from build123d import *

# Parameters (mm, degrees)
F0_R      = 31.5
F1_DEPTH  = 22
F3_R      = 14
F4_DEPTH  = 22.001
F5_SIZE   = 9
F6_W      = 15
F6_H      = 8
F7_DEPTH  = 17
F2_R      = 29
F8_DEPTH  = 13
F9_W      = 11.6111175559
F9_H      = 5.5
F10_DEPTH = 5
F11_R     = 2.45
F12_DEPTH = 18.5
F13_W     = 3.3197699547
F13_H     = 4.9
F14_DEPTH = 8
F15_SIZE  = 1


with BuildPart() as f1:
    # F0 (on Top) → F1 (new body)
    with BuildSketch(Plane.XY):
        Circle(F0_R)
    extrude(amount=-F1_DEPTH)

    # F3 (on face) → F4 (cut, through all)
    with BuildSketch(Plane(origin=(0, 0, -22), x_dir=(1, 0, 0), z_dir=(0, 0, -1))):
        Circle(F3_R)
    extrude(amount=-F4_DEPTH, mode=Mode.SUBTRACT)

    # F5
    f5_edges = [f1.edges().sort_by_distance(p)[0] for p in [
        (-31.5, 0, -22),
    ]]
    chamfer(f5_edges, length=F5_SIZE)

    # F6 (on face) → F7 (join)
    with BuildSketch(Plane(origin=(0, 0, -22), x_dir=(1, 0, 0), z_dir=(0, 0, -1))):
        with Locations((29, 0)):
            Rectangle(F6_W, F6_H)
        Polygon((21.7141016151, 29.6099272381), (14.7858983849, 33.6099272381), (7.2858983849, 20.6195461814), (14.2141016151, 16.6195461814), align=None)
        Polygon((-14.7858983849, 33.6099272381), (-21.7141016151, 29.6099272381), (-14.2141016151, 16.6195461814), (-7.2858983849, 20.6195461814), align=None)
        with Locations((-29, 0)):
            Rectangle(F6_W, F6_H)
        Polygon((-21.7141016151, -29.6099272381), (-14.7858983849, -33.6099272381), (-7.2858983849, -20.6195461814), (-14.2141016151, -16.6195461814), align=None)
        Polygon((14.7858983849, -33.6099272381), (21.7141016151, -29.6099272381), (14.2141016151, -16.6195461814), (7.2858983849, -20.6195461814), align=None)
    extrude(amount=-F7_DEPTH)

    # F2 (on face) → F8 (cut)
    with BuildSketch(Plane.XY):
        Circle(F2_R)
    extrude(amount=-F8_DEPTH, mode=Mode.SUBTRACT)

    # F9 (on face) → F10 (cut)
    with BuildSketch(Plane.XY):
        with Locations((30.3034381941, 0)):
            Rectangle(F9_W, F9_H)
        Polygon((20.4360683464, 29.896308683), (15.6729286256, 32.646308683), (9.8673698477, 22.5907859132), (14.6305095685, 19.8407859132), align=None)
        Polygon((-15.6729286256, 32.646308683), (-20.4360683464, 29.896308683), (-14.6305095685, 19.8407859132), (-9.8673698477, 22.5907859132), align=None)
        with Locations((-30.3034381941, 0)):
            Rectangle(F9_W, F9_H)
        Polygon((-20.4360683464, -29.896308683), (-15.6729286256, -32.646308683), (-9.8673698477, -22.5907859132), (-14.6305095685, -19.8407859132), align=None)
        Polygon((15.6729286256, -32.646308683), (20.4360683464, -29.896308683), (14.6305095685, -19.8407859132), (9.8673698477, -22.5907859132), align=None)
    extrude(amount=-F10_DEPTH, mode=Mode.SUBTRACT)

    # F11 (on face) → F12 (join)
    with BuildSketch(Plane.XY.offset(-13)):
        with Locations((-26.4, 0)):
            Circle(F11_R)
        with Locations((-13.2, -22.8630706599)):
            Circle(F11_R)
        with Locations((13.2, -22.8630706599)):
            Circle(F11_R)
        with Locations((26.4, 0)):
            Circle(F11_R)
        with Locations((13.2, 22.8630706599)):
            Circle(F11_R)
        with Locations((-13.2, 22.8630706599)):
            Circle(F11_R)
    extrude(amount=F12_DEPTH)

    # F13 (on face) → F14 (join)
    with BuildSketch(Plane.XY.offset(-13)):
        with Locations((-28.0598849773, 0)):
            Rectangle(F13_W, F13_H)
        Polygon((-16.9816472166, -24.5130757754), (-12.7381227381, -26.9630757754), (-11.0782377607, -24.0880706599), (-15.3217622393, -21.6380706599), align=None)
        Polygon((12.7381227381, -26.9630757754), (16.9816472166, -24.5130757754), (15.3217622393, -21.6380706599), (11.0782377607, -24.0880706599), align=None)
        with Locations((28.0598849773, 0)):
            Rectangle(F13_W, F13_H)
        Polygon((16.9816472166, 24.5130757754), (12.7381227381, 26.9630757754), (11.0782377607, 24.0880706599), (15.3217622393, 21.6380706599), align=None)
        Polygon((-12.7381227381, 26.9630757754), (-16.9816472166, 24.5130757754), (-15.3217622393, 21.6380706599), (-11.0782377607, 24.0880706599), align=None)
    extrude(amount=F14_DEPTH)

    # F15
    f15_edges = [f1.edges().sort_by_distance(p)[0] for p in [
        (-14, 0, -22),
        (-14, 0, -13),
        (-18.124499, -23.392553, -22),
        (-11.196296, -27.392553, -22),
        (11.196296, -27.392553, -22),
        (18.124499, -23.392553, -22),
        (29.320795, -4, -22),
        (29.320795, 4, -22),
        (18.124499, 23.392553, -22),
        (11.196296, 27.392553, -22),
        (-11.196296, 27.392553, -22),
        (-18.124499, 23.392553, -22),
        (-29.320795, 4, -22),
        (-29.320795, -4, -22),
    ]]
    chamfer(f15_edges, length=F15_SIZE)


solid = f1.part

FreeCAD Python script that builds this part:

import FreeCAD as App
import Part
import Sketcher
from FreeCAD import Vector
Q = App.Units.Quantity


def edges_at(feature, points):
    """Names of the edges that pass closest to the given points."""
    edges = feature.Shape.Edges
    near = lambda p: min(range(len(edges)), key=lambda i: edges[i].distToShape(Part.Vertex(*p))[0])
    return sorted({f"Edge{near(p) + 1}" for p in points})

doc = App.newDocument("Part")
params = doc.addObject("Spreadsheet::Sheet", "Params")
for row, (alias, value) in enumerate([
    ("sketch1_diameter", "63 mm"),
    ("pad1_length", "22 mm"),
    ("sketch2_diameter", "28 mm"),
    ("chamfer_size", "9 mm"),
    ("sketch3_width", "15 mm"),
    ("sketch3_height", "8 mm"),
    ("sketch3_length", "8 mm"),
    ("sketch3_length2", "15 mm"),
    ("pad2_length", "17 mm"),
    ("sketch4_diameter", "58 mm"),
    ("pocket2_length", "13 mm"),
    ("sketch5_height", "5.5 mm"),
    ("sketch5_length", "5.5 mm"),
    ("pocket3_length", "5 mm"),
    ("sketch6_diameter", "4.9 mm"),
    ("pad3_length", "18.5 mm"),
    ("sketch7_height", "4.9 mm"),
    ("sketch7_length", "4.9 mm"),
    ("pad4_length", "8 mm"),
    ("chamfer2_size", "1 mm"),
], start=1):
    params.set(f"A{row}", alias)
    params.set(f"B{row}", "=" + value)
    params.setAlias(f"B{row}", alias)

body = doc.addObject("PartDesign::Body", "Body")

# Sketch on XY plane
sketch1 = doc.addObject("Sketcher::SketchObject", "Sketch")
body.addObject(sketch1)
sketch1.AttachmentSupport = (doc.XY_Plane, [""])
sketch1.MapMode = "FlatFace"
sketch1.addGeometry(Part.Circle(Vector(0, 0, 0), Vector(0, 0, 1), 31.5), False)
sketch1.addConstraint([
    Sketcher.Constraint("Coincident", 0, 3, -1, 1),
    Sketcher.Constraint("Diameter", 0, Q("63 mm")),
])
sketch1.setExpression("Constraints[1]", "Params.sketch1_diameter")
pad1 = doc.addObject("PartDesign::Pad", "Pad")
body.addObject(pad1)
pad1.Profile = sketch1
pad1.setExpression("Length", "Params.pad1_length")
pad1.Reversed = True

# Sketch on XY plane
sketch2 = doc.addObject("Sketcher::SketchObject", "Sketch001")
body.addObject(sketch2)
sketch2.AttachmentSupport = (doc.XY_Plane, [""])
sketch2.MapMode = "FlatFace"
sketch2.AttachmentOffset = App.Placement(Vector(0, 0, -22), App.Rotation())
sketch2.addGeometry(Part.Circle(Vector(0, 0, 0), Vector(0, 0, 1), 14), False)
sketch2.addConstraint([
    Sketcher.Constraint("Coincident", 0, 3, -1, 1),
    Sketcher.Constraint("Diameter", 0, Q("28 mm")),
])
sketch2.setExpression("Constraints[1]", "Params.sketch2_diameter")
pocket1 = doc.addObject("PartDesign::Pocket", "Pocket")
body.addObject(pocket1)
pocket1.Profile = sketch2
pocket1.Type = "ThroughAll"
pocket1.Reversed = True
doc.recompute()

chamfer = doc.addObject("PartDesign::Chamfer", "Chamfer")
body.addObject(chamfer)
chamfer.Base = (pocket1, edges_at(pocket1, [(-31.5, 0, -22)]))
chamfer.setExpression("Size", "Params.chamfer_size")

# Sketch on XY plane
sketch3 = doc.addObject("Sketcher::SketchObject", "Sketch002")
body.addObject(sketch3)
sketch3.AttachmentSupport = (doc.XY_Plane, [""])
sketch3.MapMode = "FlatFace"
sketch3.AttachmentOffset = App.Placement(Vector(0, 0, -22), App.Rotation())
sketch3.addGeometry([
    Part.LineSegment(Vector(21.5, -4, 0), Vector(21.5, 4, 0)),  # 0
    Part.LineSegment(Vector(21.5, 4, 0), Vector(36.5, 4, 0)),  # 1
    Part.LineSegment(Vector(36.5, 4, 0), Vector(36.5, -4, 0)),  # 2
    Part.LineSegment(Vector(36.5, -4, 0), Vector(21.5, -4, 0)),  # 3
    Part.LineSegment(Vector(21.714102, -29.609927, 0), Vector(14.785898, -33.609927, 0)),  # 4
    Part.LineSegment(Vector(14.785898, -33.609927, 0), Vector(7.285898, -20.619546, 0)),  # 5
    Part.LineSegment(Vector(7.285898, -20.619546, 0), Vector(14.214102, -16.619546, 0)),  # 6
    Part.LineSegment(Vector(14.214102, -16.619546, 0), Vector(21.714102, -29.609927, 0)),  # 7
    Part.LineSegment(Vector(-14.785898, -33.609927, 0), Vector(-21.714102, -29.609927, 0)),  # 8
    Part.LineSegment(Vector(-21.714102, -29.609927, 0), Vector(-14.214102, -16.619546, 0)),  # 9
    Part.LineSegment(Vector(-14.214102, -16.619546, 0), Vector(-7.285898, -20.619546, 0)),  # 10
    Part.LineSegment(Vector(-7.285898, -20.619546, 0), Vector(-14.785898, -33.609927, 0)),  # 11
    Part.LineSegment(Vector(-36.5, -4, 0), Vector(-36.5, 4, 0)),  # 12
    Part.LineSegment(Vector(-36.5, 4, 0), Vector(-21.5, 4, 0)),  # 13
    Part.LineSegment(Vector(-21.5, 4, 0), Vector(-21.5, -4, 0)),  # 14
    Part.LineSegment(Vector(-21.5, -4, 0), Vector(-36.5, -4, 0)),  # 15
    Part.LineSegment(Vector(-21.714102, 29.609927, 0), Vector(-14.785898, 33.609927, 0)),  # 16
    Part.LineSegment(Vector(-14.785898, 33.609927, 0), Vector(-7.285898, 20.619546, 0)),  # 17
    Part.LineSegment(Vector(-7.285898, 20.619546, 0), Vector(-14.214102, 16.619546, 0)),  # 18
    Part.LineSegment(Vector(-14.214102, 16.619546, 0), Vector(-21.714102, 29.609927, 0)),  # 19
    Part.LineSegment(Vector(14.785898, 33.609927, 0), Vector(21.714102, 29.609927, 0)),  # 20
    Part.LineSegment(Vector(21.714102, 29.609927, 0), Vector(14.214102, 16.619546, 0)),  # 21
    Part.LineSegment(Vector(14.214102, 16.619546, 0), Vector(7.285898, 20.619546, 0)),  # 22
    Part.LineSegment(Vector(7.285898, 20.619546, 0), Vector(14.785898, 33.609927, 0)),  # 23
], False)
sketch3.addConstraint([
    Sketcher.Constraint("Coincident", 0, 2, 1, 1),
    Sketcher.Constraint("Coincident", 1, 2, 2, 1),
    Sketcher.Constraint("Coincident", 2, 2, 3, 1),
    Sketcher.Constraint("Coincident", 3, 2, 0, 1),
    Sketcher.Constraint("Coincident", 4, 2, 5, 1),
    Sketcher.Constraint("Coincident", 5, 2, 6, 1),
    Sketcher.Constraint("Coincident", 6, 2, 7, 1),
    Sketcher.Constraint("Coincident", 7, 2, 4, 1),
    Sketcher.Constraint("Coincident", 8, 2, 9, 1),
    Sketcher.Constraint("Coincident", 9, 2, 10, 1),
    Sketcher.Constraint("Coincident", 10, 2, 11, 1),
    Sketcher.Constraint("Coincident", 11, 2, 8, 1),
    Sketcher.Constraint("Coincident", 12, 2, 13, 1),
    Sketcher.Constraint("Coincident", 13, 2, 14, 1),
    Sketcher.Constraint("Coincident", 14, 2, 15, 1),
    Sketcher.Constraint("Coincident", 15, 2, 12, 1),
    Sketcher.Constraint("Coincident", 16, 2, 17, 1),
    Sketcher.Constraint("Coincident", 17, 2, 18, 1),
    Sketcher.Constraint("Coincident", 18, 2, 19, 1),
    Sketcher.Constraint("Coincident", 19, 2, 16, 1),
    Sketcher.Constraint("Coincident", 20, 2, 21, 1),
    Sketcher.Constraint("Coincident", 21, 2, 22, 1),
    Sketcher.Constraint("Coincident", 22, 2, 23, 1),
    Sketcher.Constraint("Coincident", 23, 2, 20, 1),
    Sketcher.Constraint("Vertical", 0),
    Sketcher.Constraint("Horizontal", 1),
    Sketcher.Constraint("Vertical", 2),
    Sketcher.Constraint("Horizontal", 3),
    Sketcher.Constraint("Vertical", 12),
    Sketcher.Constraint("Horizontal", 13),
    Sketcher.Constraint("Vertical", 14),
    Sketcher.Constraint("Horizontal", 15),
    Sketcher.Constraint("Symmetric", 2, 2, 12, 2, -1, 1),
    Sketcher.Constraint("Symmetric", 0, 2, 14, 2, -1, 1),
    Sketcher.Constraint("Symmetric", 4, 2, 16, 2, -1, 1),
    Sketcher.Constraint("Symmetric", 5, 2, 17, 2, -1, 1),
    Sketcher.Constraint("Symmetric", 6, 2, 18, 2, -1, 1),
    Sketcher.Constraint("Symmetric", 7, 2, 19, 2, -1, 1),
    Sketcher.Constraint("Symmetric", 8, 2, 20, 2, -1, 1),
    Sketcher.Constraint("Symmetric", 9, 2, 21, 2, -1, 1),
    Sketcher.Constraint("Symmetric", 10, 2, 22, 2, -1, 1),
    Sketcher.Constraint("Symmetric", 11, 2, 23, 2, -1, 1),
    Sketcher.Constraint("Symmetric", 7, 2, 8, 2, -2),
    Sketcher.Constraint("Symmetric", 6, 2, 9, 2, -2),
    Sketcher.Constraint("Symmetric", 5, 2, 10, 2, -2),
    Sketcher.Constraint("Symmetric", 4, 2, 11, 2, -2),
    Sketcher.Constraint("Perpendicular", 4, 5),
    Sketcher.Constraint("Perpendicular", 5, 6),
    Sketcher.Constraint("Perpendicular", 6, 7),
    Sketcher.Constraint("Horizontal", 1, 2, 12, 2),
    Sketcher.Constraint("DistanceX", 1, 1, 1, 2, Q("15 mm")),
    Sketcher.Constraint("DistanceY", 0, 1, 0, 2, Q("8 mm")),
    Sketcher.Constraint("Angle", 4, Q("-150 deg")),
    Sketcher.Constraint("Distance", 4, Q("8 mm")),
    Sketcher.Constraint("Distance", 5, Q("15 mm")),
    Sketcher.Constraint("DistanceX", 8, 2, 5, 2, Q("29 mm")),
    Sketcher.Constraint("DistanceX", -1, 1, 0, 2, Q("21.5 mm")),
    Sketcher.Constraint("DistanceY", 4, 2, -1, 1, Q("33.609927 mm")),
])
sketch3.setExpression("Constraints[50]", "Params.sketch3_width")
sketch3.setExpression("Constraints[51]", "Params.sketch3_height")
sketch3.setExpression("Constraints[53]", "Params.sketch3_length")
sketch3.setExpression("Constraints[54]", "Params.sketch3_length2")
pad2 = doc.addObject("PartDesign::Pad", "Pad001")
body.addObject(pad2)
pad2.Profile = sketch3
pad2.setExpression("Length", "Params.pad2_length")

# Sketch on XY plane
sketch4 = doc.addObject("Sketcher::SketchObject", "Sketch003")
body.addObject(sketch4)
sketch4.AttachmentSupport = (doc.XY_Plane, [""])
sketch4.MapMode = "FlatFace"
sketch4.addGeometry(Part.Circle(Vector(0, 0, 0), Vector(0, 0, 1), 29), False)
sketch4.addConstraint([
    Sketcher.Constraint("Coincident", 0, 3, -1, 1),
    Sketcher.Constraint("Diameter", 0, Q("58 mm")),
])
sketch4.setExpression("Constraints[1]", "Params.sketch4_diameter")
pocket2 = doc.addObject("PartDesign::Pocket", "Pocket001")
body.addObject(pocket2)
pocket2.Profile = sketch4
pocket2.setExpression("Length", "Params.pocket2_length")

# Sketch on XY plane
sketch5 = doc.addObject("Sketcher::SketchObject", "Sketch004")
body.addObject(sketch5)
sketch5.AttachmentSupport = (doc.XY_Plane, [""])
sketch5.MapMode = "FlatFace"
sketch5.addGeometry([
    Part.LineSegment(Vector(24.497879, 2.75, 0), Vector(24.497879, -2.75, 0)),  # 0
    Part.LineSegment(Vector(24.497879, -2.75, 0), Vector(36.108997, -2.75, 0)),  # 1
    Part.LineSegment(Vector(36.108997, -2.75, 0), Vector(36.108997, 2.75, 0)),  # 2
    Part.LineSegment(Vector(36.108997, 2.75, 0), Vector(24.497879, 2.75, 0)),  # 3
    Part.LineSegment(Vector(20.436068, 29.896309, 0), Vector(15.672929, 32.646309, 0)),  # 4
    Part.LineSegment(Vector(15.672929, 32.646309, 0), Vector(9.86737, 22.590786, 0)),  # 5
    Part.LineSegment(Vector(9.86737, 22.590786, 0), Vector(14.63051, 19.840786, 0)),  # 6
    Part.LineSegment(Vector(14.63051, 19.840786, 0), Vector(20.436068, 29.896309, 0)),  # 7
    Part.LineSegment(Vector(-15.672929, 32.646309, 0), Vector(-20.436068, 29.896309, 0)),  # 8
    Part.LineSegment(Vector(-20.436068, 29.896309, 0), Vector(-14.63051, 19.840786, 0)),  # 9
    Part.LineSegment(Vector(-14.63051, 19.840786, 0), Vector(-9.86737, 22.590786, 0)),  # 10
    Part.LineSegment(Vector(-9.86737, 22.590786, 0), Vector(-15.672929, 32.646309, 0)),  # 11
    Part.LineSegment(Vector(-36.108997, 2.75, 0), Vector(-36.108997, -2.75, 0)),  # 12
    Part.LineSegment(Vector(-36.108997, -2.75, 0), Vector(-24.497879, -2.75, 0)),  # 13
    Part.LineSegment(Vector(-24.497879, -2.75, 0), Vector(-24.497879, 2.75, 0)),  # 14
    Part.LineSegment(Vector(-24.497879, 2.75, 0), Vector(-36.108997, 2.75, 0)),  # 15
    Part.LineSegment(Vector(-20.436068, -29.896309, 0), Vector(-15.672929, -32.646309, 0)),  # 16
    Part.LineSegment(Vector(-15.672929, -32.646309, 0), Vector(-9.86737, -22.590786, 0)),  # 17
    Part.LineSegment(Vector(-9.86737, -22.590786, 0), Vector(-14.63051, -19.840786, 0)),  # 18
    Part.LineSegment(Vector(-14.63051, -19.840786, 0), Vector(-20.436068, -29.896309, 0)),  # 19
    Part.LineSegment(Vector(15.672929, -32.646309, 0), Vector(20.436068, -29.896309, 0)),  # 20
    Part.LineSegment(Vector(20.436068, -29.896309, 0), Vector(14.63051, -19.840786, 0)),  # 21
    Part.LineSegment(Vector(14.63051, -19.840786, 0), Vector(9.86737, -22.590786, 0)),  # 22
    Part.LineSegment(Vector(9.86737, -22.590786, 0), Vector(15.672929, -32.646309, 0)),  # 23
], False)
sketch5.addConstraint([
    Sketcher.Constraint("Coincident", 0, 2, 1, 1),
    Sketcher.Constraint("Coincident", 1, 2, 2, 1),
    Sketcher.Constraint("Coincident", 2, 2, 3, 1),
    Sketcher.Constraint("Coincident", 3, 2, 0, 1),
    Sketcher.Constraint("Coincident", 4, 2, 5, 1),
    Sketcher.Constraint("Coincident", 5, 2, 6, 1),
    Sketcher.Constraint("Coincident", 6, 2, 7, 1),
    Sketcher.Constraint("Coincident", 7, 2, 4, 1),
    Sketcher.Constraint("Coincident", 8, 2, 9, 1),
    Sketcher.Constraint("Coincident", 9, 2, 10, 1),
    Sketcher.Constraint("Coincident", 10, 2, 11, 1),
    Sketcher.Constraint("Coincident", 11, 2, 8, 1),
    Sketcher.Constraint("Coincident", 12, 2, 13, 1),
    Sketcher.Constraint("Coincident", 13, 2, 14, 1),
    Sketcher.Constraint("Coincident", 14, 2, 15, 1),
    Sketcher.Constraint("Coincident", 15, 2, 12, 1),
    Sketcher.Constraint("Coincident", 16, 2, 17, 1),
    Sketcher.Constraint("Coincident", 17, 2, 18, 1),
    Sketcher.Constraint("Coincident", 18, 2, 19, 1),
    Sketcher.Constraint("Coincident", 19, 2, 16, 1),
    Sketcher.Constraint("Coincident", 20, 2, 21, 1),
    Sketcher.Constraint("Coincident", 21, 2, 22, 1),
    Sketcher.Constraint("Coincident", 22, 2, 23, 1),
    Sketcher.Constraint("Coincident", 23, 2, 20, 1),
    Sketcher.Constraint("Vertical", 0),
    Sketcher.Constraint("Horizontal", 1),
    Sketcher.Constraint("Vertical", 2),
    Sketcher.Constraint("Horizontal", 3),
    Sketcher.Constraint("Vertical", 12),
    Sketcher.Constraint("Horizontal", 13),
    Sketcher.Constraint("Vertical", 14),
    Sketcher.Constraint("Horizontal", 15),
    Sketcher.Constraint("Symmetric", 2, 2, 12, 2, -1, 1),
    Sketcher.Constraint("Symmetric", 0, 2, 14, 2, -1, 1),
    Sketcher.Constraint("Symmetric", 4, 2, 16, 2, -1, 1),
    Sketcher.Constraint("Symmetric", 5, 2, 17, 2, -1, 1),
    Sketcher.Constraint("Symmetric", 6, 2, 18, 2, -1, 1),
    Sketcher.Constraint("Symmetric", 7, 2, 19, 2, -1, 1),
    Sketcher.Constraint("Symmetric", 8, 2, 20, 2, -1, 1),
    Sketcher.Constraint("Symmetric", 9, 2, 21, 2, -1, 1),
    Sketcher.Constraint("Symmetric", 10, 2, 22, 2, -1, 1),
    Sketcher.Constraint("Symmetric", 11, 2, 23, 2, -1, 1),
    Sketcher.Constraint("Symmetric", 7, 2, 8, 2, -2),
    Sketcher.Constraint("Symmetric", 6, 2, 9, 2, -2),
    Sketcher.Constraint("Symmetric", 5, 2, 10, 2, -2),
    Sketcher.Constraint("Symmetric", 4, 2, 11, 2, -2),
    Sketcher.Constraint("Perpendicular", 4, 5),
    Sketcher.Constraint("Perpendicular", 5, 6),
    Sketcher.Constraint("Perpendicular", 6, 7),
    Sketcher.Constraint("Horizontal", 1, 2, 12, 2),
    Sketcher.Constraint("Angle", 4, Q("150 deg")),
    Sketcher.Constraint("DistanceY", 0, 2, 0, 1, Q("5.5 mm")),
    Sketcher.Constraint("Distance", 4, Q("5.5 mm")),
    Sketcher.Constraint("DistanceX", 5, 2, 7, 2, Q("10.568698 mm")),
    Sketcher.Constraint("DistanceX", 10, 2, 4, 2, Q("25.540298 mm")),
    Sketcher.Constraint("DistanceX", 1, 1, 1, 2, Q("11.611118 mm")),
    Sketcher.Constraint("DistanceX", -1, 1, 0, 2, Q("24.497879 mm")),
    Sketcher.Constraint("DistanceY", -1, 1, 4, 2, Q("32.646309 mm")),
])
sketch5.setExpression("Constraints[51]", "Params.sketch5_height")
sketch5.setExpression("Constraints[52]", "Params.sketch5_length")
pocket3 = doc.addObject("PartDesign::Pocket", "Pocket002")
body.addObject(pocket3)
pocket3.Profile = sketch5
pocket3.setExpression("Length", "Params.pocket3_length")

# Sketch on XY plane
sketch6 = doc.addObject("Sketcher::SketchObject", "Sketch005")
body.addObject(sketch6)
sketch6.AttachmentSupport = (doc.XY_Plane, [""])
sketch6.MapMode = "FlatFace"
sketch6.AttachmentOffset = App.Placement(Vector(0, 0, -13), App.Rotation())
sketch6.addGeometry([
    Part.Circle(Vector(-26.4, 0, 0), Vector(0, 0, 1), 2.45),  # 0
    Part.Circle(Vector(-13.2, -22.863071, 0), Vector(0, 0, 1), 2.45),  # 1
    Part.Circle(Vector(13.2, -22.863071, 0), Vector(0, 0, 1), 2.45),  # 2
    Part.Circle(Vector(26.4, 0, 0), Vector(0, 0, 1), 2.45),  # 3
    Part.Circle(Vector(13.2, 22.863071, 0), Vector(0, 0, 1), 2.45),  # 4
    Part.Circle(Vector(-13.2, 22.863071, 0), Vector(0, 0, 1), 2.45),  # 5
], False)
sketch6.addConstraint([
    Sketcher.Constraint("Equal", 0, 1),
    Sketcher.Constraint("Equal", 1, 2),
    Sketcher.Constraint("Equal", 2, 3),
    Sketcher.Constraint("Equal", 3, 4),
    Sketcher.Constraint("Equal", 4, 5),
    Sketcher.Constraint("Symmetric", 0, 3, 3, 3, -1, 1),
    Sketcher.Constraint("Symmetric", 1, 3, 4, 3, -1, 1),
    Sketcher.Constraint("Symmetric", 2, 3, 5, 3, -1, 1),
    Sketcher.Constraint("Symmetric", 1, 3, 2, 3, -2),
    Sketcher.Constraint("PointOnObject", 0, 3, -1),
    Sketcher.Constraint("Diameter", 0, Q("4.9 mm")),
    Sketcher.Constraint("DistanceX", 0, 3, -1, 1, Q("26.4 mm")),
    Sketcher.Constraint("DistanceX", 1, 3, -1, 1, Q("13.2 mm")),
    Sketcher.Constraint("DistanceY", 1, 3, -1, 1, Q("22.863071 mm")),
])
sketch6.setExpression("Constraints[10]", "Params.sketch6_diameter")
pad3 = doc.addObject("PartDesign::Pad", "Pad002")
body.addObject(pad3)
pad3.Profile = sketch6
pad3.setExpression("Length", "Params.pad3_length")

# Sketch on XY plane
sketch7 = doc.addObject("Sketcher::SketchObject", "Sketch006")
body.addObject(sketch7)
sketch7.AttachmentSupport = (doc.XY_Plane, [""])
sketch7.MapMode = "FlatFace"
sketch7.AttachmentOffset = App.Placement(Vector(0, 0, -13), App.Rotation())
sketch7.addGeometry([
    Part.LineSegment(Vector(-29.71977, 2.45, 0), Vector(-29.71977, -2.45, 0)),  # 0
    Part.LineSegment(Vector(-29.71977, -2.45, 0), Vector(-26.4, -2.45, 0)),  # 1
    Part.LineSegment(Vector(-26.4, -2.45, 0), Vector(-26.4, 2.45, 0)),  # 2
    Part.LineSegment(Vector(-26.4, 2.45, 0), Vector(-29.71977, 2.45, 0)),  # 3
    Part.LineSegment(Vector(-16.981647, -24.513076, 0), Vector(-12.738123, -26.963076, 0)),  # 4
    Part.LineSegment(Vector(-12.738123, -26.963076, 0), Vector(-11.078238, -24.088071, 0)),  # 5
    Part.LineSegment(Vector(-11.078238, -24.088071, 0), Vector(-15.321762, -21.638071, 0)),  # 6
    Part.LineSegment(Vector(-15.321762, -21.638071, 0), Vector(-16.981647, -24.513076, 0)),  # 7
    Part.LineSegment(Vector(12.738123, -26.963076, 0), Vector(16.981647, -24.513076, 0)),  # 8
    Part.LineSegment(Vector(16.981647, -24.513076, 0), Vector(15.321762, -21.638071, 0)),  # 9
    Part.LineSegment(Vector(15.321762, -21.638071, 0), Vector(11.078238, -24.088071, 0)),  # 10
    Part.LineSegment(Vector(11.078238, -24.088071, 0), Vector(12.738123, -26.963076, 0)),  # 11
    Part.LineSegment(Vector(26.4, 2.45, 0), Vector(26.4, -2.45, 0)),  # 12
    Part.LineSegment(Vector(26.4, -2.45, 0), Vector(29.71977, -2.45, 0)),  # 13
    Part.LineSegment(Vector(29.71977, -2.45, 0), Vector(29.71977, 2.45, 0)),  # 14
    Part.LineSegment(Vector(29.71977, 2.45, 0), Vector(26.4, 2.45, 0)),  # 15
    Part.LineSegment(Vector(16.981647, 24.513076, 0), Vector(12.738123, 26.963076, 0)),  # 16
    Part.LineSegment(Vector(12.738123, 26.963076, 0), Vector(11.078238, 24.088071, 0)),  # 17
    Part.LineSegment(Vector(11.078238, 24.088071, 0), Vector(15.321762, 21.638071, 0)),  # 18
    Part.LineSegment(Vector(15.321762, 21.638071, 0), Vector(16.981647, 24.513076, 0)),  # 19
    Part.LineSegment(Vector(-12.738123, 26.963076, 0), Vector(-16.981647, 24.513076, 0)),  # 20
    Part.LineSegment(Vector(-16.981647, 24.513076, 0), Vector(-15.321762, 21.638071, 0)),  # 21
    Part.LineSegment(Vector(-15.321762, 21.638071, 0), Vector(-11.078238, 24.088071, 0)),  # 22
    Part.LineSegment(Vector(-11.078238, 24.088071, 0), Vector(-12.738123, 26.963076, 0)),  # 23
], False)
sketch7.addConstraint([
    Sketcher.Constraint("Coincident", 0, 2, 1, 1),
    Sketcher.Constraint("Coincident", 1, 2, 2, 1),
    Sketcher.Constraint("Coincident", 2, 2, 3, 1),
    Sketcher.Constraint("Coincident", 3, 2, 0, 1),
    Sketcher.Constraint("Coincident", 4, 2, 5, 1),
    Sketcher.Constraint("Coincident", 5, 2, 6, 1),
    Sketcher.Constraint("Coincident", 6, 2, 7, 1),
    Sketcher.Constraint("Coincident", 7, 2, 4, 1),
    Sketcher.Constraint("Coincident", 8, 2, 9, 1),
    Sketcher.Constraint("Coincident", 9, 2, 10, 1),
    Sketcher.Constraint("Coincident", 10, 2, 11, 1),
    Sketcher.Constraint("Coincident", 11, 2, 8, 1),
    Sketcher.Constraint("Coincident", 12, 2, 13, 1),
    Sketcher.Constraint("Coincident", 13, 2, 14, 1),
    Sketcher.Constraint("Coincident", 14, 2, 15, 1),
    Sketcher.Constraint("Coincident", 15, 2, 12, 1),
    Sketcher.Constraint("Coincident", 16, 2, 17, 1),
    Sketcher.Constraint("Coincident", 17, 2, 18, 1),
    Sketcher.Constraint("Coincident", 18, 2, 19, 1),
    Sketcher.Constraint("Coincident", 19, 2, 16, 1),
    Sketcher.Constraint("Coincident", 20, 2, 21, 1),
    Sketcher.Constraint("Coincident", 21, 2, 22, 1),
    Sketcher.Constraint("Coincident", 22, 2, 23, 1),
    Sketcher.Constraint("Coincident", 23, 2, 20, 1),
    Sketcher.Constraint("Vertical", 0),
    Sketcher.Constraint("Horizontal", 1),
    Sketcher.Constraint("Vertical", 2),
    Sketcher.Constraint("Horizontal", 3),
    Sketcher.Constraint("Vertical", 12),
    Sketcher.Constraint("Horizontal", 13),
    Sketcher.Constraint("Vertical", 14),
    Sketcher.Constraint("Horizontal", 15),
    Sketcher.Constraint("Symmetric", 2, 2, 12, 2, -1, 1),
    Sketcher.Constraint("Symmetric", 0, 2, 14, 2, -1, 1),
    Sketcher.Constraint("Symmetric", 4, 2, 16, 2, -1, 1),
    Sketcher.Constraint("Symmetric", 5, 2, 17, 2, -1, 1),
    Sketcher.Constraint("Symmetric", 6, 2, 18, 2, -1, 1),
    Sketcher.Constraint("Symmetric", 7, 2, 19, 2, -1, 1),
    Sketcher.Constraint("Symmetric", 8, 2, 20, 2, -1, 1),
    Sketcher.Constraint("Symmetric", 9, 2, 21, 2, -1, 1),
    Sketcher.Constraint("Symmetric", 10, 2, 22, 2, -1, 1),
    Sketcher.Constraint("Symmetric", 11, 2, 23, 2, -1, 1),
    Sketcher.Constraint("Symmetric", 7, 2, 8, 2, -2),
    Sketcher.Constraint("Symmetric", 6, 2, 9, 2, -2),
    Sketcher.Constraint("Symmetric", 5, 2, 10, 2, -2),
    Sketcher.Constraint("Symmetric", 4, 2, 11, 2, -2),
    Sketcher.Constraint("Perpendicular", 4, 5),
    Sketcher.Constraint("Perpendicular", 5, 6),
    Sketcher.Constraint("Perpendicular", 6, 7),
    Sketcher.Constraint("Horizontal", 1, 2, 12, 2),
    Sketcher.Constraint("Angle", 4, Q("-30 deg")),
    Sketcher.Constraint("DistanceY", 0, 2, 0, 1, Q("4.9 mm")),
    Sketcher.Constraint("Distance", 4, Q("4.9 mm")),
    Sketcher.Constraint("DistanceX", 1, 2, -1, 1, Q("26.4 mm")),
    Sketcher.Constraint("DistanceX", 5, 2, 9, 2, Q("26.4 mm")),
    Sketcher.Constraint("DistanceX", 1, 1, 1, 2, Q("3.31977 mm")),
    Sketcher.Constraint("Distance", 5, Q("3.31977 mm")),
    Sketcher.Constraint("DistanceY", 5, 2, -1, 1, Q("24.088071 mm")),
])
sketch7.setExpression("Constraints[51]", "Params.sketch7_height")
sketch7.setExpression("Constraints[52]", "Params.sketch7_length")
pad4 = doc.addObject("PartDesign::Pad", "Pad003")
body.addObject(pad4)
pad4.Profile = sketch7
pad4.setExpression("Length", "Params.pad4_length")
doc.recompute()

chamfer2 = doc.addObject("PartDesign::Chamfer", "Chamfer001")
body.addObject(chamfer2)
chamfer2.Base = (pad4, edges_at(pad4, [
    (-14, 0, -22),
    (-14, 0, -13),
    (-18.124, -23.393, -22),
    (-11.196, -27.393, -22),
    (11.196, -27.393, -22),
    (18.124, -23.393, -22),
    (29.321, -4, -22),
    (29.321, 4, -22),
    (18.124, 23.393, -22),
    (11.196, 27.393, -22),
    (-11.196, 27.393, -22),
    (-18.124, 23.393, -22),
    (-29.321, 4, -22),
    (-29.321, -4, -22),
]))
chamfer2.setExpression("Size", "Params.chamfer2_size")

doc.recompute()
